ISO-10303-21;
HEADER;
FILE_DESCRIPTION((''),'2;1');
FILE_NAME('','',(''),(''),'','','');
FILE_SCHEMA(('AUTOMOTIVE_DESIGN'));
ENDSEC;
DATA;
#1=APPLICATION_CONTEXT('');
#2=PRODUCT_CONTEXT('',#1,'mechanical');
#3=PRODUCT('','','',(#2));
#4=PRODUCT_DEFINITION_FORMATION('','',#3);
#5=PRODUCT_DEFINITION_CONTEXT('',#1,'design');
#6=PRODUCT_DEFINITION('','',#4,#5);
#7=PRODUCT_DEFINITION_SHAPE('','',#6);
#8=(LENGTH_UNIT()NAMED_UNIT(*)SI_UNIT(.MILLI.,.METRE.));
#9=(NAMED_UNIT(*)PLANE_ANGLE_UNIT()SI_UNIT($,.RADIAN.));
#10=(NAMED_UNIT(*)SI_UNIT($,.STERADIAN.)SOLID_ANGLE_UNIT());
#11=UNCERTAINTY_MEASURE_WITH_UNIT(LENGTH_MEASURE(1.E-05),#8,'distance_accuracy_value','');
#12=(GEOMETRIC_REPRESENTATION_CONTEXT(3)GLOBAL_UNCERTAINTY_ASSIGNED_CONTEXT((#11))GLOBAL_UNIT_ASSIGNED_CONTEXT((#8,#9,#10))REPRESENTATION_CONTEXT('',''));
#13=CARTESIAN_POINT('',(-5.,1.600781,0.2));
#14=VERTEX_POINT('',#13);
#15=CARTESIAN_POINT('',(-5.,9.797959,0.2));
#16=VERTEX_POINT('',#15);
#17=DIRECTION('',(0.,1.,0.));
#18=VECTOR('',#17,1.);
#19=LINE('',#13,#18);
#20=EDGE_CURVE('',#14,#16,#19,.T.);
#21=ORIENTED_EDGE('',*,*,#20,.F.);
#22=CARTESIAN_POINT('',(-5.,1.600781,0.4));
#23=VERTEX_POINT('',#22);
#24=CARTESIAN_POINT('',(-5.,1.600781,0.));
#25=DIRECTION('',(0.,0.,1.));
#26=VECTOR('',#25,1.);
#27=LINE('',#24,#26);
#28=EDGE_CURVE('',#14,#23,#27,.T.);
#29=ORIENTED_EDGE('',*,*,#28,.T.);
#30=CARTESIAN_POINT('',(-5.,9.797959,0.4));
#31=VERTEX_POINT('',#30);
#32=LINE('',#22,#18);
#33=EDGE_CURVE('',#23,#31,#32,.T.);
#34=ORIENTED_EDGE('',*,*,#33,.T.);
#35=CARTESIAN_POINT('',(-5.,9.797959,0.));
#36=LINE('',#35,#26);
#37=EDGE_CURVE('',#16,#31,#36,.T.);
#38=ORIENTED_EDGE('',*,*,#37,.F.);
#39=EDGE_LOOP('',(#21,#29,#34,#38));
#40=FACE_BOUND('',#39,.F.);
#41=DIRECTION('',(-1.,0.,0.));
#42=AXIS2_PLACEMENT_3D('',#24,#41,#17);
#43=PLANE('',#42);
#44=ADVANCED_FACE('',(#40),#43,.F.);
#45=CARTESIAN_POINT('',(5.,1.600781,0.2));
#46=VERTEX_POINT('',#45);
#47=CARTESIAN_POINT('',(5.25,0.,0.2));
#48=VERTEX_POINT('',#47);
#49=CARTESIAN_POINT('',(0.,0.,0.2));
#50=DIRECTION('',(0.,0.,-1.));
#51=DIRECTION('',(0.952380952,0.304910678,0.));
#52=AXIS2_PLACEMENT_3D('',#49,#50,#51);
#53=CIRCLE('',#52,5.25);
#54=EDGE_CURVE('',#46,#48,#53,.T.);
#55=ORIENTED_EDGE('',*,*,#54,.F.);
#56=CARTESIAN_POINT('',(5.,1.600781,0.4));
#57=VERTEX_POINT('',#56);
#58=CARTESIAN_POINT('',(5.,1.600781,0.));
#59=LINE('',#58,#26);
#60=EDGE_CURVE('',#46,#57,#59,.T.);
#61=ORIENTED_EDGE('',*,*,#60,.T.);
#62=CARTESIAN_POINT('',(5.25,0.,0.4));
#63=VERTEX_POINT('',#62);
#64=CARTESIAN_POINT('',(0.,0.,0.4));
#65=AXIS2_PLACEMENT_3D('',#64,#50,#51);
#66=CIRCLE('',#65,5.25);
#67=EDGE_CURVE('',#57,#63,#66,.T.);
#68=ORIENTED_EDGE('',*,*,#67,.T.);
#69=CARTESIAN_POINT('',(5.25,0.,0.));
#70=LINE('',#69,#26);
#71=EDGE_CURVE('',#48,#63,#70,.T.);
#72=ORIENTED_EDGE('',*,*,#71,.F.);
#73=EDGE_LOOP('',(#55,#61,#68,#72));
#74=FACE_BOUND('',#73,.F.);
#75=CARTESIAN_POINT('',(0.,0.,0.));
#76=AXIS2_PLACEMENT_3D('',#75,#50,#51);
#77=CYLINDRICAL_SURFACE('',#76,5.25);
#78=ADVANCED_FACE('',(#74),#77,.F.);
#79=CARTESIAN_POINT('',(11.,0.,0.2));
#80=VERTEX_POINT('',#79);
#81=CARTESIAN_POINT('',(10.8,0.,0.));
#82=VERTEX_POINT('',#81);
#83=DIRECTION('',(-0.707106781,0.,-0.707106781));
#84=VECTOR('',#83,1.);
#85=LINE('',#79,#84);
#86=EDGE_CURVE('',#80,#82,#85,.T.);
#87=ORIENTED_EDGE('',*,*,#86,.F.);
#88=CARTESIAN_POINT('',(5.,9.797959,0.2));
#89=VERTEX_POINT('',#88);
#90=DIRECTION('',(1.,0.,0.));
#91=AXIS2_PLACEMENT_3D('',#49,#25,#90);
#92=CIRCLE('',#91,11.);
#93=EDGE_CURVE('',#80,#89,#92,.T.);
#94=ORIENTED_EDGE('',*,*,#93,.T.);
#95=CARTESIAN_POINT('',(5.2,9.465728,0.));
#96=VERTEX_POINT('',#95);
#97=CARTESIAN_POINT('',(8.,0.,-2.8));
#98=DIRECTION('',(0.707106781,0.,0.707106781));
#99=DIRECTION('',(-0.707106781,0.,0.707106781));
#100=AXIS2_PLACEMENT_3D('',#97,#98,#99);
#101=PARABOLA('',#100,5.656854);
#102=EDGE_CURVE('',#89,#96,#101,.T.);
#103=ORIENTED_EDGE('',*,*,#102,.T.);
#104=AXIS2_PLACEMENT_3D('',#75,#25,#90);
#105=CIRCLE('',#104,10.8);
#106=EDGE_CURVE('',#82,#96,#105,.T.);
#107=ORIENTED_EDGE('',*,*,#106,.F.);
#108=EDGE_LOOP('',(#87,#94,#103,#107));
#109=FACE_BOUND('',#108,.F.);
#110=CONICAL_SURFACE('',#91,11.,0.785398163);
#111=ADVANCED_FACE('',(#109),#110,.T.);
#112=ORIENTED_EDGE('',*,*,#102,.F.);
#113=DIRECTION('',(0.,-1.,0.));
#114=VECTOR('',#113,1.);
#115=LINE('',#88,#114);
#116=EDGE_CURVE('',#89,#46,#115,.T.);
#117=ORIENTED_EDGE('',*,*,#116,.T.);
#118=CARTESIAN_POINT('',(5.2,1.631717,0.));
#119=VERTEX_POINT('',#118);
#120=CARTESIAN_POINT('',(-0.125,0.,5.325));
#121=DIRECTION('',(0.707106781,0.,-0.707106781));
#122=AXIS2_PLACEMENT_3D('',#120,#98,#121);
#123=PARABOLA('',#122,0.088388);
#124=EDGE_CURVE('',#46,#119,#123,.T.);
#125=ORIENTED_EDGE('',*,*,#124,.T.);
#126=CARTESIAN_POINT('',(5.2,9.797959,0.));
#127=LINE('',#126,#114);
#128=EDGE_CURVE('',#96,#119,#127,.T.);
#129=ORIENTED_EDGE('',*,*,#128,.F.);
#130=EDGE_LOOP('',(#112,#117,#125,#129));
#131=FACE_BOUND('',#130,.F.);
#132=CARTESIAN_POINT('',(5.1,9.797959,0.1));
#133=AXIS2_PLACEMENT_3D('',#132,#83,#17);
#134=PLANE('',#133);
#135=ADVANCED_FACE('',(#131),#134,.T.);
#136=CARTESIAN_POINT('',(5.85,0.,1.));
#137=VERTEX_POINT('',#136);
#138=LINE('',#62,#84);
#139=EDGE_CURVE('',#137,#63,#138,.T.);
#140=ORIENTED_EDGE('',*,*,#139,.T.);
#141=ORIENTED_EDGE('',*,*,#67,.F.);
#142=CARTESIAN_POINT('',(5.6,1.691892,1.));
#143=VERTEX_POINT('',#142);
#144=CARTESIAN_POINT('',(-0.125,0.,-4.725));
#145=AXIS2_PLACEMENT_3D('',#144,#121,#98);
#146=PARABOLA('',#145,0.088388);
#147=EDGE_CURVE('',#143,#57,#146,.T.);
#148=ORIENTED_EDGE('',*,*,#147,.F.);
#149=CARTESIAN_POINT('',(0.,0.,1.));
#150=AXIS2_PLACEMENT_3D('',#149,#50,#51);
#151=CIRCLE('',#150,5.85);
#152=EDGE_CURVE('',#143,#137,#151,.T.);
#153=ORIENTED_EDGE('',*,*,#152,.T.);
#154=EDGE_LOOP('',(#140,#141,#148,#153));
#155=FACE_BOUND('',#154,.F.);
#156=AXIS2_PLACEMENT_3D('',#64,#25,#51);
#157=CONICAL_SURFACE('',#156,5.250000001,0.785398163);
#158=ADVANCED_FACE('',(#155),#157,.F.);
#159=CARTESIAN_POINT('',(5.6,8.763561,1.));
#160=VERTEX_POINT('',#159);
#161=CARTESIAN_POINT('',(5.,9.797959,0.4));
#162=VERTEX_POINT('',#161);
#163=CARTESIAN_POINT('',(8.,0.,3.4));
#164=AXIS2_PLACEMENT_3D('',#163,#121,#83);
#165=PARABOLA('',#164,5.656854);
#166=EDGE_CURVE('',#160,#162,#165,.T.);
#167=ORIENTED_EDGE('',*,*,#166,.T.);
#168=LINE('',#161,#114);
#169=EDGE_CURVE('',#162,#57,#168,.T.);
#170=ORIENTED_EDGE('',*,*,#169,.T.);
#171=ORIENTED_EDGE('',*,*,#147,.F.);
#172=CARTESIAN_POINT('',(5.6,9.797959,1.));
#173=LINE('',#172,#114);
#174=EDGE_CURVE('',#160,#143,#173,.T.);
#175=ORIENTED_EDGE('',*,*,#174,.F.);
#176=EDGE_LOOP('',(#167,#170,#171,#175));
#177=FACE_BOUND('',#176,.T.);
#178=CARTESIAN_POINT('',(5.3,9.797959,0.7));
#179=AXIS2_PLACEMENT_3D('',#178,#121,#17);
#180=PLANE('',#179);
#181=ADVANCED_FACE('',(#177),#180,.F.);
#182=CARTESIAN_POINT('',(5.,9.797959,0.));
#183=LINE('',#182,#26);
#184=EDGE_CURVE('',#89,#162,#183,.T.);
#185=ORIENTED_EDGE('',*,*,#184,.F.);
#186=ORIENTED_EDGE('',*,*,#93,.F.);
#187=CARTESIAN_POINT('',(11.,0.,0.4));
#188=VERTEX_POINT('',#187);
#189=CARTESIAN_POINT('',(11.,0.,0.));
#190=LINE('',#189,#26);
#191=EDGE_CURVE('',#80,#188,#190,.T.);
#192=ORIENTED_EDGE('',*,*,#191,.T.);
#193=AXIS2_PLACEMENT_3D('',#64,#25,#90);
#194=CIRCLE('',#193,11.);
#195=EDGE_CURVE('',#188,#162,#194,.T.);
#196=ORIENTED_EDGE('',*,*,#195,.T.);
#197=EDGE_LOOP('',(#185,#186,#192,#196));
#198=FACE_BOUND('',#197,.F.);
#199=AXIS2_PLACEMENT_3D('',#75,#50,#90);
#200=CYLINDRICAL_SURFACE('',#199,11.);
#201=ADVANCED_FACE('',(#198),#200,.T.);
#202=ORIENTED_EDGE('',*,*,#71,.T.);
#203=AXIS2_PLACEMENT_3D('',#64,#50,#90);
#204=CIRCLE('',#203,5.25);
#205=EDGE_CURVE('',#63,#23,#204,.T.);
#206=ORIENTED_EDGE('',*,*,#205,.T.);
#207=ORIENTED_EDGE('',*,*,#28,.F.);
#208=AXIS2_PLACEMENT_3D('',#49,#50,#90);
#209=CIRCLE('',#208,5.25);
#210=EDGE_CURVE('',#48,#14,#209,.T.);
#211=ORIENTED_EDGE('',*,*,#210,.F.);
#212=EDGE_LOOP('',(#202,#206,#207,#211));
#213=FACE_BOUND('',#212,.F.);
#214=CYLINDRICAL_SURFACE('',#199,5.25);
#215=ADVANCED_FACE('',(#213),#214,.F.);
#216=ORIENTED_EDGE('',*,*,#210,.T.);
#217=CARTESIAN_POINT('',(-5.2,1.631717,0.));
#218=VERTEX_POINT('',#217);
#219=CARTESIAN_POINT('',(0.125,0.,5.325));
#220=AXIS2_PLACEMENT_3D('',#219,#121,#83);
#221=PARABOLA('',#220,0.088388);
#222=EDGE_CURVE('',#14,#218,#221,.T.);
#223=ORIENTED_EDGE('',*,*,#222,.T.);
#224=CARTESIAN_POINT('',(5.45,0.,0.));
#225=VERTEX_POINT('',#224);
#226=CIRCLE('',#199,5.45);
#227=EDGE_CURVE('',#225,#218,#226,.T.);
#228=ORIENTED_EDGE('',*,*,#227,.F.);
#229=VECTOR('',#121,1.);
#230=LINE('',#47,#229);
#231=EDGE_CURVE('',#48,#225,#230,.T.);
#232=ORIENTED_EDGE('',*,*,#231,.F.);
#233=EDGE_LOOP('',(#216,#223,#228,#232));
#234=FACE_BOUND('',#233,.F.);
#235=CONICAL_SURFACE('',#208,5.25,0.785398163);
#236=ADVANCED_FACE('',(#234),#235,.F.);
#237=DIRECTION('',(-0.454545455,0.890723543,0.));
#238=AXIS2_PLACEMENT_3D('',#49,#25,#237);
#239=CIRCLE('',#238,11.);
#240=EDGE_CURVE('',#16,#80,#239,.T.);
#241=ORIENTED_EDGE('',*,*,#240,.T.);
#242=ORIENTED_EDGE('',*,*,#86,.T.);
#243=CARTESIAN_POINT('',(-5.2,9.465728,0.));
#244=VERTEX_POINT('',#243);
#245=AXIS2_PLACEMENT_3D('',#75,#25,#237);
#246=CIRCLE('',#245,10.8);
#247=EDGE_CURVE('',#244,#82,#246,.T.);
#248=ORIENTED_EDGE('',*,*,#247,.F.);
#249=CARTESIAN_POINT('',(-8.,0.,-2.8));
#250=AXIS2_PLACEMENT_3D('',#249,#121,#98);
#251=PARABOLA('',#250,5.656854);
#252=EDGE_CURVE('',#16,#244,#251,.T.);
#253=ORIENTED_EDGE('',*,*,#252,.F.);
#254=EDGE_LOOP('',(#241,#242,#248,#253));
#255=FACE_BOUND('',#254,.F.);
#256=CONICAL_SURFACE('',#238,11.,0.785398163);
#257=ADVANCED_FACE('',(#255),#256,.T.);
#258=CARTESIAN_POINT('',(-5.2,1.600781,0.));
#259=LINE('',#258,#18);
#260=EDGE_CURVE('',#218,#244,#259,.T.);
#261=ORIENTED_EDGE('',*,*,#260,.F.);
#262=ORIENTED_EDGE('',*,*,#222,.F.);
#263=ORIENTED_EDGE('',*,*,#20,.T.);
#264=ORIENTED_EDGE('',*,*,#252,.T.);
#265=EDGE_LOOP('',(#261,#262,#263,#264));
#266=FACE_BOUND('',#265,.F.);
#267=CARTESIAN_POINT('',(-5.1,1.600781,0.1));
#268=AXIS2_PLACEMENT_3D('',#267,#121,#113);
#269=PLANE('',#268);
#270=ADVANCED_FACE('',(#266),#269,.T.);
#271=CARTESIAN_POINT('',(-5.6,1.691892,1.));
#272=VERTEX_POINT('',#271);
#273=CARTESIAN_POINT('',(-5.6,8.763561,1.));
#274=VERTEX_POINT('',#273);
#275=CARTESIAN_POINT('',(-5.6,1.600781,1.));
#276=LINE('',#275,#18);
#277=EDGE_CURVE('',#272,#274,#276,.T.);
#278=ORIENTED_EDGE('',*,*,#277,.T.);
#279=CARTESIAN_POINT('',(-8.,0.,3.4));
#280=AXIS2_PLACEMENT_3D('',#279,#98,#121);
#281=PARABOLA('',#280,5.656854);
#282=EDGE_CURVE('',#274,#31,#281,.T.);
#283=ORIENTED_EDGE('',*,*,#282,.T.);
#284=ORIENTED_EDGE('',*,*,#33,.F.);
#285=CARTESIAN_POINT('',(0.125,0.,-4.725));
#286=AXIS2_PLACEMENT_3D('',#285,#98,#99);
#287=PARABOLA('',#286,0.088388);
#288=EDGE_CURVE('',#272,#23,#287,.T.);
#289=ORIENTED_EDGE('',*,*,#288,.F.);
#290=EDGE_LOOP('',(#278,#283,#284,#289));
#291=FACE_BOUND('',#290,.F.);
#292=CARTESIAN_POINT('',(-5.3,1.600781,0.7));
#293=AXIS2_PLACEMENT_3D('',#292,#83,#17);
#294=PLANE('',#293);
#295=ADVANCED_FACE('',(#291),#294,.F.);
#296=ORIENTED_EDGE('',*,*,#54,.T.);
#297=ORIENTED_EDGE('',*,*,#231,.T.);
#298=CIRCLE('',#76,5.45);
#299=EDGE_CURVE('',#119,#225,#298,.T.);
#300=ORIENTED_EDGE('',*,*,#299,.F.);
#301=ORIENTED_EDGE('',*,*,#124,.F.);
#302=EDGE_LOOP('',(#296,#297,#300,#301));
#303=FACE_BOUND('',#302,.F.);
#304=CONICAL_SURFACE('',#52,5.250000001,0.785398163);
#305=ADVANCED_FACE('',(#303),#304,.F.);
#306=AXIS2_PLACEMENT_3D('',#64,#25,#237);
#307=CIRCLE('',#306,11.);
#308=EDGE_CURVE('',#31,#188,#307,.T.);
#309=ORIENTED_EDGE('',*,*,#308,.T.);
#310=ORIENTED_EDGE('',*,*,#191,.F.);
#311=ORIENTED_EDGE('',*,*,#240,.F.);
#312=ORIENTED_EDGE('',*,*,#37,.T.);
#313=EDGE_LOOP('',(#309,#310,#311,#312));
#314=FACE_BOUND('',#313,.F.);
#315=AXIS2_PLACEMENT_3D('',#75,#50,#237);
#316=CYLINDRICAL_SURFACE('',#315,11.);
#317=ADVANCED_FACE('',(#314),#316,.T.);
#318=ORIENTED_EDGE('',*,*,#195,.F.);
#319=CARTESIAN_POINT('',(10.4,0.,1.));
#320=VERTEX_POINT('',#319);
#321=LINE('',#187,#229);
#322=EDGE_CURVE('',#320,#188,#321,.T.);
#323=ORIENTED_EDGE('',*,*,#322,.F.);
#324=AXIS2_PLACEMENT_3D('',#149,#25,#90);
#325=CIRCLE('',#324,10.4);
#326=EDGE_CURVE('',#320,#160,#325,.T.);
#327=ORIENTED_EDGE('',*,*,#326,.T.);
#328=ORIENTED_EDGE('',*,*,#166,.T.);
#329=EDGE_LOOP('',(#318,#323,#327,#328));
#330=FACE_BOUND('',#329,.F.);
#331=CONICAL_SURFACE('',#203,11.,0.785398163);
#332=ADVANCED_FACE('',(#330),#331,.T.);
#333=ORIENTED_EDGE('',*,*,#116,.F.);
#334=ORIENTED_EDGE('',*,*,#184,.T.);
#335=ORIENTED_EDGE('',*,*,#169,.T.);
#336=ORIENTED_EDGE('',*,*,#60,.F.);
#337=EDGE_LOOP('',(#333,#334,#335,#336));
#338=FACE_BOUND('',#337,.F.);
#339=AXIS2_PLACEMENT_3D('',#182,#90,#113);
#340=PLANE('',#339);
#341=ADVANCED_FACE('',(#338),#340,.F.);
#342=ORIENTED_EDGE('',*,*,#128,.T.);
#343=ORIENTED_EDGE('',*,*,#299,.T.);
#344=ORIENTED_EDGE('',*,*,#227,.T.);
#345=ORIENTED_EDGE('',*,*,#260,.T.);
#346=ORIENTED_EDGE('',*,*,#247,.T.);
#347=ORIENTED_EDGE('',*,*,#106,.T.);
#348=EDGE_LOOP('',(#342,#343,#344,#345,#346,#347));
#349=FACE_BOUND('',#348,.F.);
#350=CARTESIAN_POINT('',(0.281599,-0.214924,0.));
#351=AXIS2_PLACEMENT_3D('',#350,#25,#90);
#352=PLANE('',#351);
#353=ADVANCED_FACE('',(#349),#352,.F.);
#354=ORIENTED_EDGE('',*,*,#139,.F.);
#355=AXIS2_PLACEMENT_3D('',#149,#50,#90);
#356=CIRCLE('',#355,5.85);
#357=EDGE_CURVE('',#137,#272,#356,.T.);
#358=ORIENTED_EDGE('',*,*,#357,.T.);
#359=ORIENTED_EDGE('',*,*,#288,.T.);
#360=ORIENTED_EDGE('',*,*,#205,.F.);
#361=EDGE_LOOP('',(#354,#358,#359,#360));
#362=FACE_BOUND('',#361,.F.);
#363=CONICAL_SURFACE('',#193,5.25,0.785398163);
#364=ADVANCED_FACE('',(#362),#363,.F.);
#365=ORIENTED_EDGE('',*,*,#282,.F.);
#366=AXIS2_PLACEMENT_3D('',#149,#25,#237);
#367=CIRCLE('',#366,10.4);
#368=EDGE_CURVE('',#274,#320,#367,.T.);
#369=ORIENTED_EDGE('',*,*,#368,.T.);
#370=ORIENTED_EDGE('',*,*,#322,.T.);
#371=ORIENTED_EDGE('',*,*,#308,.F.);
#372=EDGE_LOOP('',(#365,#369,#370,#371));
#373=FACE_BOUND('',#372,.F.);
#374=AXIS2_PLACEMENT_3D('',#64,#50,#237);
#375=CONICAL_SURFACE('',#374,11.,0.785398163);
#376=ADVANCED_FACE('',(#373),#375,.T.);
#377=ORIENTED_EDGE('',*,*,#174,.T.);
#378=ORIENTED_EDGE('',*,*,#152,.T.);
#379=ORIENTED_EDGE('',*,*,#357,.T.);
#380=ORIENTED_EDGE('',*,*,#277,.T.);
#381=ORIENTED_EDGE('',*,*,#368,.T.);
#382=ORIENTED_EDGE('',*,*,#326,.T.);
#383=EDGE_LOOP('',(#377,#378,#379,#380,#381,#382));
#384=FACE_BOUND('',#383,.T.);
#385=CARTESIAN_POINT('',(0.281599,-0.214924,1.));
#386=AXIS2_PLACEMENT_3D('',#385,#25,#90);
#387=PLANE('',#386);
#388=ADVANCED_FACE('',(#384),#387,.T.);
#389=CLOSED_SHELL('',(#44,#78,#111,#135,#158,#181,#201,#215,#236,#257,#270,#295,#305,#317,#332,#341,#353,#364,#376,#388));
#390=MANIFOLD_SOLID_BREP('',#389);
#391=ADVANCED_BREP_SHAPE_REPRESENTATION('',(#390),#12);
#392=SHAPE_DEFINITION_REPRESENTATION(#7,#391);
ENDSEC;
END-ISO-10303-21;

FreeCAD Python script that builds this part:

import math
import FreeCAD as App
import Part
import Sketcher

V = App.Vector


def edges_at(feature, points):
    """Names of the edges that pass closest to the given points."""
    edges = feature.Shape.Edges
    near = lambda p: min(range(len(edges)), key=lambda i: edges[i].distToShape(Part.Vertex(*p))[0])
    return sorted({f"Edge{near(p) + 1}" for p in points})

doc = App.newDocument("Part")
body = doc.addObject("PartDesign::Body", "Body")

sketch1 = body.newObject("Sketcher::SketchObject", "Sketch")
sketch1.AttachmentSupport = (doc.getObject("XY_Plane"), [""])
sketch1.MapMode = "FlatFace"
sketch1.addGeometry([
    Part.ArcOfCircle(Part.Circle(V(0, 0, 0), V(0, 0, 1), 5.3), math.radians(0), math.radians(17.75)),
    Part.ArcOfCircle(Part.Circle(V(0, 0, 0), V(0, 0, 1), 5.2), math.radians(162), math.radians(360)),
    Part.LineSegment(V(-5, 1.6, 0), V(-5, 9.8, 0)),
    Part.ArcOfCircle(Part.Circle(V(0, 0, 0), V(0, 0, 1), 11), math.radians(117), math.radians(360)),
    Part.ArcOfCircle(Part.Circle(V(0, 0, 0), V(0, 0, 1), 11), math.radians(0), math.radians(63)),
    Part.LineSegment(V(5, 9.8, 0), V(5, 1.6, 0)),
], False)
sketch1.addConstraint([
    Sketcher.Constraint("Tangent", 0, 1, 1, 2),
    Sketcher.Constraint("Coincident", 1, 1, 2, 1),
    Sketcher.Constraint("Coincident", 2, 2, 3, 1),
    Sketcher.Constraint("Tangent", 3, 2, 4, 1),
    Sketcher.Constraint("Coincident", 4, 2, 5, 1),
    Sketcher.Constraint("Coincident", 5, 2, 0, 2),
    Sketcher.Constraint("Vertical", 2),
    Sketcher.Constraint("Vertical", 5),
    Sketcher.Constraint("Coincident", 0, 3, -1, 1),
    Sketcher.Constraint("Coincident", 3, 3, -1, 1),
    Sketcher.Constraint("Equal", 0, 1),
    Sketcher.Constraint("Equal", 3, 4),
    Sketcher.Constraint("PointOnObject", 0, 1, -1),
    Sketcher.Constraint("PointOnObject", 3, 2, -1),
    Sketcher.Constraint("Horizontal", 2, 2, 4, 2),
    Sketcher.Constraint("Radius", 3, 11.0),
    Sketcher.Constraint("Radius", 0, 5.25),
    Sketcher.Constraint("DistanceX", 1, 1, -1, 1, 5.0),
])
pad1 = body.newObject("PartDesign::Pad", "Pad")
pad1.Profile = sketch1
pad1.Length = 1
doc.recompute()

chamfer = body.newObject("PartDesign::Chamfer", "Chamfer")
chamfer.Base = (pad1, edges_at(pad1, [
    (-0.81, -5.187, 0),
    (-5, 5.699, 0),
    (-5.745, -9.381, 0),
    (9.381, 5.745, 0),
    (5, 5.699, 0),
]))
chamfer.Size = 0.2
doc.recompute()

chamfer2 = body.newObject("PartDesign::Chamfer", "Chamfer001")
chamfer2.Base = (chamfer, edges_at(chamfer, [
    (-0.81, -5.187, 1),
    (-5, 5.699, 1),
    (-5.745, -9.381, 1),
    (9.381, 5.745, 1),
    (5, 5.699, 1),
]))
chamfer2.Size = 0.6

doc.recompute()
